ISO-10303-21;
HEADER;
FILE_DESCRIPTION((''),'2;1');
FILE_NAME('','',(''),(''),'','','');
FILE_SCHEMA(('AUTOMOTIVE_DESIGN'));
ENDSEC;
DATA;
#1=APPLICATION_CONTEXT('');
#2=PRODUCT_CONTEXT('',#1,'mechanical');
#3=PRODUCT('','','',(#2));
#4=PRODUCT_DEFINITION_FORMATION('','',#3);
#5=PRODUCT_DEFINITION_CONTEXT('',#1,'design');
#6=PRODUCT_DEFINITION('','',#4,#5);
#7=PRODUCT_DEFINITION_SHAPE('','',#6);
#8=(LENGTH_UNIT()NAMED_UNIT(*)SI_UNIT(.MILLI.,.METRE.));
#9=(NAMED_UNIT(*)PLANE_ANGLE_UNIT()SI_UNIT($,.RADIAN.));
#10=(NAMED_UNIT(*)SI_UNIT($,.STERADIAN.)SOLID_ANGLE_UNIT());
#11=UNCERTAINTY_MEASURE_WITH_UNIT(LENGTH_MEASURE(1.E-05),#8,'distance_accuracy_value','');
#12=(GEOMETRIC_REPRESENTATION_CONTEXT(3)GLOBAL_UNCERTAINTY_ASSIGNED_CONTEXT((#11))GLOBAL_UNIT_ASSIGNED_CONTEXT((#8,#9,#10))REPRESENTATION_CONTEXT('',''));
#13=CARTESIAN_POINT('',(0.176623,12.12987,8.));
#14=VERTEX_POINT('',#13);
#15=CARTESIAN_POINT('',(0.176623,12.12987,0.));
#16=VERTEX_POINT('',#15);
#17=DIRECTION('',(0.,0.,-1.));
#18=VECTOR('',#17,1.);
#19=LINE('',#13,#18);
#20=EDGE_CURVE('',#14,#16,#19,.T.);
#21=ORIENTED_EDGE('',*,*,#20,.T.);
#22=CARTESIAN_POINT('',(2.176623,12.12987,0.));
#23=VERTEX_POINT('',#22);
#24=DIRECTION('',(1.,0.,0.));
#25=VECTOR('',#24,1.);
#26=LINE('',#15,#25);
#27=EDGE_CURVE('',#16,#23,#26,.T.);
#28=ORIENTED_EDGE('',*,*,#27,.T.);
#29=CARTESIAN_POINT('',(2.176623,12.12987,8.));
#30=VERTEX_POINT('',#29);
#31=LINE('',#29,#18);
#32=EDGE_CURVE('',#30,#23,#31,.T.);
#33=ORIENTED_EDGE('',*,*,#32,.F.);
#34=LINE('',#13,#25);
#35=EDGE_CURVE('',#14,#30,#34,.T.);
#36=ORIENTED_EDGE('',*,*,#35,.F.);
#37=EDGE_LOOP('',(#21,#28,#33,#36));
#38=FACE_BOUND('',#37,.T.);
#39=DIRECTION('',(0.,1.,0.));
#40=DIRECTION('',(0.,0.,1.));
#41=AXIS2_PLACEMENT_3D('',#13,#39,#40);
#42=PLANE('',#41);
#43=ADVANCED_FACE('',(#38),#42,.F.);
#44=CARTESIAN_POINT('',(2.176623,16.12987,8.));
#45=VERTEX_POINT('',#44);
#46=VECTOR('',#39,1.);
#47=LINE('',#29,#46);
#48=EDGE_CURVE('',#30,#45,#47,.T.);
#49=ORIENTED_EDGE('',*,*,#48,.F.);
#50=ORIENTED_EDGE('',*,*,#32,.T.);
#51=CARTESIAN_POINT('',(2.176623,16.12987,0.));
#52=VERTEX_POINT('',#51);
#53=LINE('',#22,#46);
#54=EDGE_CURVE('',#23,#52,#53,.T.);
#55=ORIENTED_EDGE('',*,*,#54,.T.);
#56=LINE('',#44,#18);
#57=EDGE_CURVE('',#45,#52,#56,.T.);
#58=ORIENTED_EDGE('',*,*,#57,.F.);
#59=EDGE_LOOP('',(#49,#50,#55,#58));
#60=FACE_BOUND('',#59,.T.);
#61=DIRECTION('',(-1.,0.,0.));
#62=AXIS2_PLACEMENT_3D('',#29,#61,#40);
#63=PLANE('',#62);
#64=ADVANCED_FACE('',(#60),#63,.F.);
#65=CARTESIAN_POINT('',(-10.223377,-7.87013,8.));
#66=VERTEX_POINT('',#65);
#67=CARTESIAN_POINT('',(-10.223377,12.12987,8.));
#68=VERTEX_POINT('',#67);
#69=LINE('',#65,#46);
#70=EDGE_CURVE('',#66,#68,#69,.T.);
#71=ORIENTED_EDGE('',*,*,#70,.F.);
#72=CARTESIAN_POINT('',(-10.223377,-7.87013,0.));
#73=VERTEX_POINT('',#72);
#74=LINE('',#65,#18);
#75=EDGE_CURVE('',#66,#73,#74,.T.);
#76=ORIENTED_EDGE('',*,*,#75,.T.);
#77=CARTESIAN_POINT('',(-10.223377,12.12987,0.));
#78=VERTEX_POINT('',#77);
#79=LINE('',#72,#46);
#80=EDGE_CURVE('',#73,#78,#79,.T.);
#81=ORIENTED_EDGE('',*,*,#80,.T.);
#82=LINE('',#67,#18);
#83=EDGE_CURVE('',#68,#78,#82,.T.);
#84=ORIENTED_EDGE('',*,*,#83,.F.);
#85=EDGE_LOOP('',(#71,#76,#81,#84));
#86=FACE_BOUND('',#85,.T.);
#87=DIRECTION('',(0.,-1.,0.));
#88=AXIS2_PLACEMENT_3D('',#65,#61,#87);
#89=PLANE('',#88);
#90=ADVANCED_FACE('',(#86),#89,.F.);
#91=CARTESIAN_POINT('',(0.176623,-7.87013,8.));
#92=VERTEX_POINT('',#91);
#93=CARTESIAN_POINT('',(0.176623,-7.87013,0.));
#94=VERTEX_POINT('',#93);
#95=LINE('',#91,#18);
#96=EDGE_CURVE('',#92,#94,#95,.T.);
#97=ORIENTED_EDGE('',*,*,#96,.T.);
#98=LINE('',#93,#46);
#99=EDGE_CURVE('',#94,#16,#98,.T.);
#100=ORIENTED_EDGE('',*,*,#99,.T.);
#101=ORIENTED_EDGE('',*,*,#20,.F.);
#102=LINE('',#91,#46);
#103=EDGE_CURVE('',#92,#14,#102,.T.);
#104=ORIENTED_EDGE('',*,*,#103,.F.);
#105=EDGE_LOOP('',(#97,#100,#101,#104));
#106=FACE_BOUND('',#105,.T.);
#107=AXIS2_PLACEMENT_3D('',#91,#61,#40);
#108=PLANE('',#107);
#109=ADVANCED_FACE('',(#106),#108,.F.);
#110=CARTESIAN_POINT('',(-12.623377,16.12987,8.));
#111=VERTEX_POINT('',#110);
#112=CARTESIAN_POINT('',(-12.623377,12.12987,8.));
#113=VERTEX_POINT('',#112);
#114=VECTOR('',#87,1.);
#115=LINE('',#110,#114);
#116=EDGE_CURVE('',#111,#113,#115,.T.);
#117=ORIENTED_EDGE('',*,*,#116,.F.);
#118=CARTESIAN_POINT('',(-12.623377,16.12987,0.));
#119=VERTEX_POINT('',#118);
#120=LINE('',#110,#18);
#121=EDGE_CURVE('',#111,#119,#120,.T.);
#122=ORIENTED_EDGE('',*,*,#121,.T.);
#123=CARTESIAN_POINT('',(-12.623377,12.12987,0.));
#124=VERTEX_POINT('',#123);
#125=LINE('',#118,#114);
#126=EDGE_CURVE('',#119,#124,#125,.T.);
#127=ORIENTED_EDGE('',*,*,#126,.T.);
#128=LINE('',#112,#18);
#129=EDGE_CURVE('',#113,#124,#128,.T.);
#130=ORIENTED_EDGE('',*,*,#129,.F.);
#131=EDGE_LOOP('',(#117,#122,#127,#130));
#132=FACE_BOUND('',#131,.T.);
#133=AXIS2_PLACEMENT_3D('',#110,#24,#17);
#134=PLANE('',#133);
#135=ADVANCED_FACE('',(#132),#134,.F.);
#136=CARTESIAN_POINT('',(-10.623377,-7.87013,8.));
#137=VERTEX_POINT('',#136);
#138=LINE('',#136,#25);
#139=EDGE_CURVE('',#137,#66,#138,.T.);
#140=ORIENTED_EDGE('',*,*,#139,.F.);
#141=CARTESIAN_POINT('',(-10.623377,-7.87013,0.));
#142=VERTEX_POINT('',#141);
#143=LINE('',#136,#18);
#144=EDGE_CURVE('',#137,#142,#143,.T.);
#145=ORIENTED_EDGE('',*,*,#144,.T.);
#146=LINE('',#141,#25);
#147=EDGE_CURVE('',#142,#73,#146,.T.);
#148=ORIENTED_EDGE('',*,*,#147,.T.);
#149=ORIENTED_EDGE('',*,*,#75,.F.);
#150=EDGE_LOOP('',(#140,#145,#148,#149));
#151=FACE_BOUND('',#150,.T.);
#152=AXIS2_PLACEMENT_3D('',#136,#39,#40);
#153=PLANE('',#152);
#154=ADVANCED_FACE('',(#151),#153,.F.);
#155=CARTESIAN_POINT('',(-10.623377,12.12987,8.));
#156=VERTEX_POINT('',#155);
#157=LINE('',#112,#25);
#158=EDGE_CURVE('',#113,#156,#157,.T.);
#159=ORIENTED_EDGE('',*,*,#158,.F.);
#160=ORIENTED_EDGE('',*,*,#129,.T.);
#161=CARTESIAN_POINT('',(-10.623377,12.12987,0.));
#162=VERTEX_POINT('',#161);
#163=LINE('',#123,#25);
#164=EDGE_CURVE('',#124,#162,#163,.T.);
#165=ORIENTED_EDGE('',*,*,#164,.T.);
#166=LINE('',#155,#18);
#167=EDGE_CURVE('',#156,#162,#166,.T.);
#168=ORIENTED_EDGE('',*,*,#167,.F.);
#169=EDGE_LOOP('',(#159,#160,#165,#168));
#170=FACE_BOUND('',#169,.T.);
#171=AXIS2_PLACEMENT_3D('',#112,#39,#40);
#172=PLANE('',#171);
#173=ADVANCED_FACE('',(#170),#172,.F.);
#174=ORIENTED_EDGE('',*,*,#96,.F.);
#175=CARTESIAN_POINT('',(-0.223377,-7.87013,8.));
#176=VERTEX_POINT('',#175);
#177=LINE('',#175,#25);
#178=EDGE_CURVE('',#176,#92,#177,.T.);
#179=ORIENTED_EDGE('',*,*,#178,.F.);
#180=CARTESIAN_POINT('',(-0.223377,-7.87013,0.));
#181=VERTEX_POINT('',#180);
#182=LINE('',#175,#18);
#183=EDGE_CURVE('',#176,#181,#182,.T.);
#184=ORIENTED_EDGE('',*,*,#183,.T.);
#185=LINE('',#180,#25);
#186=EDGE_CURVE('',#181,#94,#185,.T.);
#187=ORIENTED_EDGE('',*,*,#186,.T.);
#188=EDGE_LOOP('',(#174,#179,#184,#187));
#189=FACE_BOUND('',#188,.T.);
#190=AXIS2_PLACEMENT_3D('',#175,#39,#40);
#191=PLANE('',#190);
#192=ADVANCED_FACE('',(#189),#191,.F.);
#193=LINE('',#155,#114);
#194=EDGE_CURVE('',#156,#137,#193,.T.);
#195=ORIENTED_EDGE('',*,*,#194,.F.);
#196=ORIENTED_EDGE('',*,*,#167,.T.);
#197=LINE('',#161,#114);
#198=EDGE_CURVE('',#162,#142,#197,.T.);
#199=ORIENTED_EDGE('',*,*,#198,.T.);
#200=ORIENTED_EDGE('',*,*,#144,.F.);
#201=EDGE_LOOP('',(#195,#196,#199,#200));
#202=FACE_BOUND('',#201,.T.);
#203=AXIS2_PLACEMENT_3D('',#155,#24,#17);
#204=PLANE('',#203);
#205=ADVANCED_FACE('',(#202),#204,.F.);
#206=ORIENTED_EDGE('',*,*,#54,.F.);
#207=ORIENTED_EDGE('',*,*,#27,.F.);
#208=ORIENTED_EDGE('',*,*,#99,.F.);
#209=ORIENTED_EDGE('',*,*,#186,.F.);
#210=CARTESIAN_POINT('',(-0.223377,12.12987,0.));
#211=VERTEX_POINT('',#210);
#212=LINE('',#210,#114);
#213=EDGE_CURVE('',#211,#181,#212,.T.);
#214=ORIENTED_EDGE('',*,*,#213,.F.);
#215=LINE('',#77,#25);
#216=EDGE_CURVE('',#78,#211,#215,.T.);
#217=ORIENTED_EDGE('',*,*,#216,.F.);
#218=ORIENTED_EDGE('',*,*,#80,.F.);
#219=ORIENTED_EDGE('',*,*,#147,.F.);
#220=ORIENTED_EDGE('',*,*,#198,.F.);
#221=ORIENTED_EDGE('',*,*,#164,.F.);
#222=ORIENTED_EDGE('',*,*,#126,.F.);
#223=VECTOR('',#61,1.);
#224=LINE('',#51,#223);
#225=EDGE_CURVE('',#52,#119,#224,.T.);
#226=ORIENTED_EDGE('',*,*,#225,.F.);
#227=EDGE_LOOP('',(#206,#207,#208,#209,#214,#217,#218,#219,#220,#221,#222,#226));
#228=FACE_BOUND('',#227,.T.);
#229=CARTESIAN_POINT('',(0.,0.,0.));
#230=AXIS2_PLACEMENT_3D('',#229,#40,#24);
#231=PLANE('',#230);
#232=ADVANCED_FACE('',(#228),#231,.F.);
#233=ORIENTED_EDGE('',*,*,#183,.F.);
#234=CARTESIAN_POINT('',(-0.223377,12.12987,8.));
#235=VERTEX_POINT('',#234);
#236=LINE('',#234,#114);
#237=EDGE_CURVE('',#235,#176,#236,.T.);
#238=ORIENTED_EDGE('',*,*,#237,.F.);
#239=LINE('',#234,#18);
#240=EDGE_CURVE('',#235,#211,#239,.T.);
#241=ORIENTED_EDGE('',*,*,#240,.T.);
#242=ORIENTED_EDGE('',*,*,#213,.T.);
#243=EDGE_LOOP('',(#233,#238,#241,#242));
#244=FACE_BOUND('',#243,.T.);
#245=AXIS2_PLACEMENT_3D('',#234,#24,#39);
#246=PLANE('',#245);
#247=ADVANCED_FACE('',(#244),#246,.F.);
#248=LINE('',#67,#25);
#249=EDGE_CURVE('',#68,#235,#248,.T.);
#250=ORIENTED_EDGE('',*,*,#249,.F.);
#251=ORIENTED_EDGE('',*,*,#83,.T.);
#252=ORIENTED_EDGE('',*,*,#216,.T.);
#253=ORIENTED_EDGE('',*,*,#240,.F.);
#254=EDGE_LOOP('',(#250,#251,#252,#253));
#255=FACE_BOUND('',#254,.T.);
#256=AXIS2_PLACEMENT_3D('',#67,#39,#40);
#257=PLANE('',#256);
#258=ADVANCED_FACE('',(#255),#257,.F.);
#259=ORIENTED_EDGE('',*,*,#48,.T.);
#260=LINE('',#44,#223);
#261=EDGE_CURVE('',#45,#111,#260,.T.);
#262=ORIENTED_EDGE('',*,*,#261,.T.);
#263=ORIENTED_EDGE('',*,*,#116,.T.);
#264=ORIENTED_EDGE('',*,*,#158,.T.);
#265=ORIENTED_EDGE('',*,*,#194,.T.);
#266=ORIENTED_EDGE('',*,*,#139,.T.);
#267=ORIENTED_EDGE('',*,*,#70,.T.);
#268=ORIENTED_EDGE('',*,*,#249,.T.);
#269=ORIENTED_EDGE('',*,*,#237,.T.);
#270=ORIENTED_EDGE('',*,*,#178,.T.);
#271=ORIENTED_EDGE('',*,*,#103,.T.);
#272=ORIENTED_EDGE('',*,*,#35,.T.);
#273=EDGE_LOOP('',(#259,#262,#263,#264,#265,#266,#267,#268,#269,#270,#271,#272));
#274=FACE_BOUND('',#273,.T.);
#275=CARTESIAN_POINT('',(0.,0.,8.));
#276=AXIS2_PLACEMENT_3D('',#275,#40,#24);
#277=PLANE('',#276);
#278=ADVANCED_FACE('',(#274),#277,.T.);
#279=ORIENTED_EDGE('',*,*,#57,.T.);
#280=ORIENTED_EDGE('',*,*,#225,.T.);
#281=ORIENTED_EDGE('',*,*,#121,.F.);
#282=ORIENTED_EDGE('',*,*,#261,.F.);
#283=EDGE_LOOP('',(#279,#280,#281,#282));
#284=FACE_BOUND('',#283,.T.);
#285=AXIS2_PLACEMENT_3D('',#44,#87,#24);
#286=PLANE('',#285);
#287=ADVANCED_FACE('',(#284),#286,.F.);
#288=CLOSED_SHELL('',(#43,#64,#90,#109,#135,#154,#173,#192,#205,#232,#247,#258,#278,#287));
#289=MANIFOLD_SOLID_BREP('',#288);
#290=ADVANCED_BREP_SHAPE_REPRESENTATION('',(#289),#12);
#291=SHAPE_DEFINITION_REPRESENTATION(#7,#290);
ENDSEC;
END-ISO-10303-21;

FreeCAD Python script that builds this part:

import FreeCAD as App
import Part
import Sketcher

doc = App.newDocument("Part")
body = doc.addObject("PartDesign::Body", "Body")

# Sketch on XY plane
sketch1 = body.newObject("Sketcher::SketchObject", "Sketch")
sketch1.AttachmentSupport = (doc.getObject("XY_Plane"), [""])
sketch1.MapMode = "FlatFace"
sketch1.addGeometry([
    Part.LineSegment(App.Vector(-10.62, -7.87, 0), App.Vector(-10.22, -7.87, 0)),  # 0
    Part.LineSegment(App.Vector(-10.22, -7.87, 0), App.Vector(-10.22, 12.13, 0)),  # 1
    Part.LineSegment(App.Vector(-10.22, 12.13, 0), App.Vector(-0.22, 12.13, 0)),  # 2
    Part.LineSegment(App.Vector(-0.22, 12.13, 0), App.Vector(-0.22, -7.87, 0)),  # 3
    Part.LineSegment(App.Vector(-0.22, -7.87, 0), App.Vector(0.18, -7.87, 0)),  # 4
    Part.LineSegment(App.Vector(0.18, -7.87, 0), App.Vector(0.18, 12.13, 0)),  # 5
    Part.LineSegment(App.Vector(0.18, 12.13, 0), App.Vector(2.18, 12.13, 0)),  # 6
    Part.LineSegment(App.Vector(2.18, 12.13, 0), App.Vector(2.18, 16.13, 0)),  # 7
    Part.LineSegment(App.Vector(2.18, 16.13, 0), App.Vector(-12.62, 16.13, 0)),  # 8
    Part.LineSegment(App.Vector(-12.62, 16.13, 0), App.Vector(-12.62, 12.13, 0)),  # 9
    Part.LineSegment(App.Vector(-12.62, 12.13, 0), App.Vector(-10.62, 12.13, 0)),  # 10
    Part.LineSegment(App.Vector(-10.62, 12.13, 0), App.Vector(-10.62, -7.87, 0)),  # 11
], False)
sketch1.addConstraint([
    Sketcher.Constraint("Coincident", 0, 2, 1, 1),
    Sketcher.Constraint("Coincident", 1, 2, 2, 1),
    Sketcher.Constraint("Coincident", 2, 2, 3, 1),
    Sketcher.Constraint("Coincident", 3, 2, 4, 1),
    Sketcher.Constraint("Coincident", 4, 2, 5, 1),
    Sketcher.Constraint("Coincident", 5, 2, 6, 1),
    Sketcher.Constraint("Coincident", 6, 2, 7, 1),
    Sketcher.Constraint("Coincident", 7, 2, 8, 1),
    Sketcher.Constraint("Coincident", 8, 2, 9, 1),
    Sketcher.Constraint("Coincident", 9, 2, 10, 1),
    Sketcher.Constraint("Coincident", 10, 2, 11, 1),
    Sketcher.Constraint("Coincident", 11, 2, 0, 1),
    Sketcher.Constraint("Horizontal", 0),
    Sketcher.Constraint("Vertical", 1),
    Sketcher.Constraint("Horizontal", 2),
    Sketcher.Constraint("Vertical", 3),
    Sketcher.Constraint("Horizontal", 4),
    Sketcher.Constraint("Vertical", 5),
    Sketcher.Constraint("Horizontal", 6),
    Sketcher.Constraint("Vertical", 7),
    Sketcher.Constraint("Horizontal", 8),
    Sketcher.Constraint("Vertical", 9),
    Sketcher.Constraint("Horizontal", 10),
    Sketcher.Constraint("Vertical", 11),
    Sketcher.Constraint("Horizontal", 0, 2, 3, 2),
    Sketcher.Constraint("Horizontal", 2, 2, 5, 2),
    Sketcher.Constraint("Horizontal", 6, 2, 9, 2),
    Sketcher.Constraint("Equal", 0, 4),
    Sketcher.Constraint("Equal", 6, 10),
    Sketcher.Constraint("DistanceX", 2, 1, 2, 2, 10.0),
    Sketcher.Constraint("DistanceX", 6, 1, 6, 2, 2.0),
    Sketcher.Constraint("DistanceY", 1, 1, 1, 2, 20.0),
    Sketcher.Constraint("DistanceY", 7, 1, 7, 2, 4.0),
    Sketcher.Constraint("DistanceX", 0, 1, 0, 2, 0.4),
    Sketcher.Constraint("DistanceY", 0, 2, -1, 1, 7.87013),
    Sketcher.Constraint("DistanceX", 0, 2, -1, 1, 10.223377),
])
pad1 = body.newObject("PartDesign::Pad", "Pad")
pad1.Profile = sketch1
pad1.Length = 8

doc.recompute()
